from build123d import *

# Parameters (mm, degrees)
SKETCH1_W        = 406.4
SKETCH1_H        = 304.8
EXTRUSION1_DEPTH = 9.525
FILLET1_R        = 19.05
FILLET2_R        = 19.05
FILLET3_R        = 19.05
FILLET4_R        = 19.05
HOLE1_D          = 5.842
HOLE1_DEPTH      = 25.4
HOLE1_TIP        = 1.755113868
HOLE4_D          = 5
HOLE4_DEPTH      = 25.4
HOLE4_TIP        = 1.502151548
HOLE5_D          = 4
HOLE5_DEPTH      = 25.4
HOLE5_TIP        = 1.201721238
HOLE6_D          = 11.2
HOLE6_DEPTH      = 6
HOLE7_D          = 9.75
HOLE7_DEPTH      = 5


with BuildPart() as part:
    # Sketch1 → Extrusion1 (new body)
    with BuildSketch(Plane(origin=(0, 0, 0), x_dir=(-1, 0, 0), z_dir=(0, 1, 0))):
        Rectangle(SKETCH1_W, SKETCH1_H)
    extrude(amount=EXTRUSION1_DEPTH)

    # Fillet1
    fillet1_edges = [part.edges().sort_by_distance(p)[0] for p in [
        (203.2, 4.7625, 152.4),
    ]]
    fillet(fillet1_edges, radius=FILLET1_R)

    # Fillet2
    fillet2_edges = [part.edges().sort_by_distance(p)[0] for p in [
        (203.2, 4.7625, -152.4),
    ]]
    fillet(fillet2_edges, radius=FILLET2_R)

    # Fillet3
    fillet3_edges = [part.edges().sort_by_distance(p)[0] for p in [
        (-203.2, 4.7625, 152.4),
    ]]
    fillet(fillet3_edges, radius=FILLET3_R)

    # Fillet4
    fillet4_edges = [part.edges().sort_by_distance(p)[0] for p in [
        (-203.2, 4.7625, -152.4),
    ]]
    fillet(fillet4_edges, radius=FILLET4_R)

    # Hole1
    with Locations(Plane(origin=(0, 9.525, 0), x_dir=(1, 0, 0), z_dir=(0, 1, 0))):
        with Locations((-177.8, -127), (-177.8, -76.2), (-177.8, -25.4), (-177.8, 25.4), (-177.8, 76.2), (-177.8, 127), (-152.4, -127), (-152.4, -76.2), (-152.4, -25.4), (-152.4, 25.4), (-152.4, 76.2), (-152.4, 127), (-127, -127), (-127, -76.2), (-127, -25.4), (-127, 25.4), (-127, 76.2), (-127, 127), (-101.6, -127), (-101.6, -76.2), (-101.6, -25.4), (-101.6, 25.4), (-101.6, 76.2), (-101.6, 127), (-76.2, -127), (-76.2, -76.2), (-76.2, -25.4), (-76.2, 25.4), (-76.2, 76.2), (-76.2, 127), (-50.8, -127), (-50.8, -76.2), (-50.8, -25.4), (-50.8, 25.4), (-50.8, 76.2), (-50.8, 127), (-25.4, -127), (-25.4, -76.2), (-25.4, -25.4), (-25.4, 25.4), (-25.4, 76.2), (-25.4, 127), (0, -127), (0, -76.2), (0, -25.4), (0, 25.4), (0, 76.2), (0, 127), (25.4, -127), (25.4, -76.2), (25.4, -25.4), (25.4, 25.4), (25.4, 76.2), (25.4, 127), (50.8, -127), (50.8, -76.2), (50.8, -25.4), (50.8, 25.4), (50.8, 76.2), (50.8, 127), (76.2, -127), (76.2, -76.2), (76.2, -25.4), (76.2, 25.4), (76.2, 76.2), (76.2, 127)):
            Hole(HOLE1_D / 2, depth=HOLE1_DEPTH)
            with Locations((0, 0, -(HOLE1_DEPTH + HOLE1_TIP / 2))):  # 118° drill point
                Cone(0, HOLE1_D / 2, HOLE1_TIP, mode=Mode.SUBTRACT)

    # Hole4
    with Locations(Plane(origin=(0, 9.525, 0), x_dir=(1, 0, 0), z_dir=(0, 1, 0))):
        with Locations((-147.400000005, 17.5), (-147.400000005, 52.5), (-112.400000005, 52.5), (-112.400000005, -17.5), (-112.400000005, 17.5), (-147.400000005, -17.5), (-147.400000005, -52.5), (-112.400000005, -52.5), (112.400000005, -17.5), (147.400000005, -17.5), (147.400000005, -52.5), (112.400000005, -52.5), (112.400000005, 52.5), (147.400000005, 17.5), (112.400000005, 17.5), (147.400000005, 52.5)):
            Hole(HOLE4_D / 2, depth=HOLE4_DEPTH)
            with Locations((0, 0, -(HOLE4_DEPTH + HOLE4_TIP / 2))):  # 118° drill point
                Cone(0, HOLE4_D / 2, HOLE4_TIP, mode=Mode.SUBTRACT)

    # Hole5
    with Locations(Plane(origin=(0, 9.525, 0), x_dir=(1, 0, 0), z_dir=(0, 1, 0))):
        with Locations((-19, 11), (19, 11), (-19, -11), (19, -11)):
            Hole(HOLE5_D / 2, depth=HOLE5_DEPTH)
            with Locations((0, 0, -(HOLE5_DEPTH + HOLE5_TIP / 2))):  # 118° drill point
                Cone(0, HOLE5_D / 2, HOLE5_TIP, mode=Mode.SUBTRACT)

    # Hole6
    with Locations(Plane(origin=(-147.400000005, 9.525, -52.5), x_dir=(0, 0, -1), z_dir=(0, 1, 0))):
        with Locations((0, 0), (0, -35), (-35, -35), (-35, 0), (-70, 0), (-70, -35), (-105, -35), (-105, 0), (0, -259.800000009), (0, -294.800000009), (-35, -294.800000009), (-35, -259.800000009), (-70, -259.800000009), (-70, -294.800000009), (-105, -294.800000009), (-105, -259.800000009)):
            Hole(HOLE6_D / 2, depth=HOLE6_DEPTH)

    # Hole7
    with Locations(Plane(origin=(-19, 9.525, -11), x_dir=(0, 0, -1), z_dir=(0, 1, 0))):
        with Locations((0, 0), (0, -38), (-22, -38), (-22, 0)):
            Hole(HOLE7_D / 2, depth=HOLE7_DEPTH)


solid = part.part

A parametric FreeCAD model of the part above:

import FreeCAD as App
import Part
import Sketcher
Q = App.Units.Quantity


def edges_at(feature, points):
    """Names of the edges that pass closest to the given points."""
    edges = feature.Shape.Edges
    near = lambda p: min(range(len(edges)), key=lambda i: edges[i].distToShape(Part.Vertex(*p))[0])
    return sorted({f"Edge{near(p) + 1}" for p in points})

doc = App.newDocument("Part")
body = doc.addObject("PartDesign::Body", "Body")

# Sketch on XZ plane
sketch1 = doc.addObject("Sketcher::SketchObject", "Sketch")
body.addObject(sketch1)
sketch1.AttachmentSupport = (doc.XZ_Plane, [""])
sketch1.MapMode = "FlatFace"
sketch1.addGeometry([
    Part.LineSegment(App.Vector(203, 152, 0), App.Vector(203, -152, 0)),
    Part.LineSegment(App.Vector(203, -152, 0), App.Vector(-203, -152, 0)),
    Part.LineSegment(App.Vector(-203, -152, 0), App.Vector(-203, 152, 0)),
    Part.LineSegment(App.Vector(-203, 152, 0), App.Vector(203, 152, 0)),
], False)
sketch1.addConstraint([
    Sketcher.Constraint("Coincident", 0, 2, 1, 1),
    Sketcher.Constraint("Coincident", 1, 2, 2, 1),
    Sketcher.Constraint("Coincident", 2, 2, 3, 1),
    Sketcher.Constraint("Coincident", 3, 2, 0, 1),
    Sketcher.Constraint("Vertical", 0),
    Sketcher.Constraint("Horizontal", 1),
    Sketcher.Constraint("Vertical", 2),
    Sketcher.Constraint("Horizontal", 3),
    Sketcher.Constraint("Symmetric", 0, 2, 2, 2, -1, 1),
    Sketcher.Constraint("DistanceX", 1, 2, 1, 1, Q("16 in")),
    Sketcher.Constraint("DistanceY", 0, 2, 0, 1, Q("12 in")),
])
pad1 = doc.addObject("PartDesign::Pad", "Pad")
body.addObject(pad1)
pad1.Profile = sketch1
pad1.Length = Q("0.375 in")
pad1.Reversed = True
doc.recompute()

fillet = doc.addObject("PartDesign::Fillet", "Fillet")
body.addObject(fillet)
fillet.Base = (pad1, edges_at(pad1, [(203.2, 4.763, 152.4)]))
fillet.Radius = Q("0.75 in")
doc.recompute()

fillet2 = doc.addObject("PartDesign::Fillet", "Fillet001")
body.addObject(fillet2)
fillet2.Base = (fillet, edges_at(fillet, [(203.2, 4.763, -152.4)]))
fillet2.Radius = Q("0.75 in")
doc.recompute()

fillet3 = doc.addObject("PartDesign::Fillet", "Fillet002")
body.addObject(fillet3)
fillet3.Base = (fillet2, edges_at(fillet2, [(-203.2, 4.763, 152.4)]))
fillet3.Radius = Q("0.75 in")
doc.recompute()

fillet4 = doc.addObject("PartDesign::Fillet", "Fillet003")
body.addObject(fillet4)
fillet4.Base = (fillet3, edges_at(fillet3, [(-203.2, 4.763, -152.4)]))
fillet4.Radius = Q("0.75 in")

# Sketch on XZ plane
sketch2 = doc.addObject("Sketcher::SketchObject", "Sketch001")
body.addObject(sketch2)
sketch2.AttachmentSupport = (doc.XZ_Plane, [""])
sketch2.MapMode = "FlatFace"
sketch2.AttachmentOffset = App.Placement(App.Vector(0, 0, -0.375 * 25.4), App.Rotation())
sketch2.addGeometry([
    Part.Circle(App.Vector(-177.8, 127, 0), App.Vector(0, 0, 1), 2.9),  # 0
    Part.Circle(App.Vector(-177.8, 76.2, 0), App.Vector(0, 0, 1), 2.9),  # 1
    Part.Circle(App.Vector(-177.8, 25.4, 0), App.Vector(0, 0, 1), 2.9),  # 2
    Part.Circle(App.Vector(-177.8, -25.4, 0), App.Vector(0, 0, 1), 2.9),  # 3
    Part.Circle(App.Vector(-177.8, -76.2, 0), App.Vector(0, 0, 1), 2.9),  # 4
    Part.Circle(App.Vector(-177.8, -127, 0), App.Vector(0, 0, 1), 2.9),  # 5
    Part.Circle(App.Vector(-152.4, 127, 0), App.Vector(0, 0, 1), 2.9),  # 6
    Part.Circle(App.Vector(-152.4, 76.2, 0), App.Vector(0, 0, 1), 2.9),  # 7
    Part.Circle(App.Vector(-152.4, 25.4, 0), App.Vector(0, 0, 1), 2.9),  # 8
    Part.Circle(App.Vector(-152.4, -25.4, 0), App.Vector(0, 0, 1), 2.9),  # 9
    Part.Circle(App.Vector(-152.4, -76.2, 0), App.Vector(0, 0, 1), 2.9),  # 10
    Part.Circle(App.Vector(-152.4, -127, 0), App.Vector(0, 0, 1), 2.9),  # 11
    Part.Circle(App.Vector(-127, 127, 0), App.Vector(0, 0, 1), 2.9),  # 12
    Part.Circle(App.Vector(-127, 76.2, 0), App.Vector(0, 0, 1), 2.9),  # 13
    Part.Circle(App.Vector(-127, 25.4, 0), App.Vector(0, 0, 1), 2.9),  # 14
    Part.Circle(App.Vector(-127, -25.4, 0), App.Vector(0, 0, 1), 2.9),  # 15
    Part.Circle(App.Vector(-127, -76.2, 0), App.Vector(0, 0, 1), 2.9),  # 16
    Part.Circle(App.Vector(-127, -127, 0), App.Vector(0, 0, 1), 2.9),  # 17
    Part.Circle(App.Vector(-101.6, 127, 0), App.Vector(0, 0, 1), 2.9),  # 18
    Part.Circle(App.Vector(-101.6, 76.2, 0), App.Vector(0, 0, 1), 2.9),  # 19
    Part.Circle(App.Vector(-101.6, 25.4, 0), App.Vector(0, 0, 1), 2.9),  # 20
    Part.Circle(App.Vector(-101.6, -25.4, 0), App.Vector(0, 0, 1), 2.9),  # 21
    Part.Circle(App.Vector(-101.6, -76.2, 0), App.Vector(0, 0, 1), 2.9),  # 22
    Part.Circle(App.Vector(-101.6, -127, 0), App.Vector(0, 0, 1), 2.9),  # 23
    Part.Circle(App.Vector(-76.2, 127, 0), App.Vector(0, 0, 1), 2.9),  # 24
    Part.Circle(App.Vector(-76.2, 76.2, 0), App.Vector(0, 0, 1), 2.9),  # 25
    Part.Circle(App.Vector(-76.2, 25.4, 0), App.Vector(0, 0, 1), 2.9),  # 26
    Part.Circle(App.Vector(-76.2, -25.4, 0), App.Vector(0, 0, 1), 2.9),  # 27
    Part.Circle(App.Vector(-76.2, -76.2, 0), App.Vector(0, 0, 1), 2.9),  # 28
    Part.Circle(App.Vector(-76.2, -127, 0), App.Vector(0, 0, 1), 2.9),  # 29
    Part.Circle(App.Vector(-50.8, 127, 0), App.Vector(0, 0, 1), 2.9),  # 30
    Part.Circle(App.Vector(-50.8, 76.2, 0), App.Vector(0, 0, 1), 2.9),  # 31
    Part.Circle(App.Vector(-50.8, 25.4, 0), App.Vector(0, 0, 1), 2.9),  # 32
    Part.Circle(App.Vector(-50.8, -25.4, 0), App.Vector(0, 0, 1), 2.9),  # 33
    Part.Circle(App.Vector(-50.8, -76.2, 0), App.Vector(0, 0, 1), 2.9),  # 34
    Part.Circle(App.Vector(-50.8, -127, 0), App.Vector(0, 0, 1), 2.9),  # 35
    Part.Circle(App.Vector(-25.4, 127, 0), App.Vector(0, 0, 1), 2.9),  # 36
    Part.Circle(App.Vector(-25.4, 76.2, 0), App.Vector(0, 0, 1), 2.9),  # 37
    Part.Circle(App.Vector(-25.4, 25.4, 0), App.Vector(0, 0, 1), 2.9),  # 38
    Part.Circle(App.Vector(-25.4, -25.4, 0), App.Vector(0, 0, 1), 2.9),  # 39
    Part.Circle(App.Vector(-25.4, -76.2, 0), App.Vector(0, 0, 1), 2.9),  # 40
    Part.Circle(App.Vector(-25.4, -127, 0), App.Vector(0, 0, 1), 2.9),  # 41
    Part.Circle(App.Vector(0, 127, 0), App.Vector(0, 0, 1), 2.9),  # 42
    Part.Circle(App.Vector(0, 76.2, 0), App.Vector(0, 0, 1), 2.9),  # 43
    Part.Circle(App.Vector(0, 25.4, 0), App.Vector(0, 0, 1), 2.9),  # 44
    Part.Circle(App.Vector(0, -25.4, 0), App.Vector(0, 0, 1), 2.9),  # 45
    Part.Circle(App.Vector(0, -76.2, 0), App.Vector(0, 0, 1), 2.9),  # 46
    Part.Circle(App.Vector(0, -127, 0), App.Vector(0, 0, 1), 2.9),  # 47
    Part.Circle(App.Vector(25.4, 127, 0), App.Vector(0, 0, 1), 2.9),  # 48
    Part.Circle(App.Vector(25.4, 76.2, 0), App.Vector(0, 0, 1), 2.9),  # 49
    Part.Circle(App.Vector(25.4, 25.4, 0), App.Vector(0, 0, 1), 2.9),  # 50
    Part.Circle(App.Vector(25.4, -25.4, 0), App.Vector(0, 0, 1), 2.9),  # 51
    Part.Circle(App.Vector(25.4, -76.2, 0), App.Vector(0, 0, 1), 2.9),  # 52
    Part.Circle(App.Vector(25.4, -127, 0), App.Vector(0, 0, 1), 2.9),  # 53
    Part.Circle(App.Vector(50.8, 127, 0), App.Vector(0, 0, 1), 2.9),  # 54
    Part.Circle(App.Vector(50.8, 76.2, 0), App.Vector(0, 0, 1), 2.9),  # 55
    Part.Circle(App.Vector(50.8, 25.4, 0), App.Vector(0, 0, 1), 2.9),  # 56
    Part.Circle(App.Vector(50.8, -25.4, 0), App.Vector(0, 0, 1), 2.9),  # 57
    Part.Circle(App.Vector(50.8, -76.2, 0), App.Vector(0, 0, 1), 2.9),  # 58
    Part.Circle(App.Vector(50.8, -127, 0), App.Vector(0, 0, 1), 2.9),  # 59
    Part.Circle(App.Vector(76.2, 127, 0), App.Vector(0, 0, 1), 2.9),  # 60
    Part.Circle(App.Vector(76.2, 76.2, 0), App.Vector(0, 0, 1), 2.9),  # 61
    Part.Circle(App.Vector(76.2, 25.4, 0), App.Vector(0, 0, 1), 2.9),  # 62
    Part.Circle(App.Vector(76.2, -25.4, 0), App.Vector(0, 0, 1), 2.9),  # 63
    Part.Circle(App.Vector(76.2, -76.2, 0), App.Vector(0, 0, 1), 2.9),  # 64
    Part.Circle(App.Vector(76.2, -127, 0), App.Vector(0, 0, 1), 2.9),  # 65
], False)
sketch2.addConstraint([
    Sketcher.Constraint("Equal", 0, 1),
    Sketcher.Constraint("Equal", 1, 2),
    Sketcher.Constraint("Equal", 2, 3),
    Sketcher.Constraint("Equal", 3, 4),
    Sketcher.Constraint("Equal", 4, 5),
    Sketcher.Constraint("Equal", 5, 6),
    Sketcher.Constraint("Equal", 6, 7),
    Sketcher.Constraint("Equal", 7, 8),
    Sketcher.Constraint("Equal", 8, 9),
    Sketcher.Constraint("Equal", 9, 10),
    Sketcher.Constraint("Equal", 10, 11),
    Sketcher.Constraint("Equal", 11, 12),
    Sketcher.Constraint("Equal", 12, 13),
    Sketcher.Constraint("Equal", 13, 14),
    Sketcher.Constraint("Equal", 14, 15),
    Sketcher.Constraint("Equal", 15, 16),
    Sketcher.Constraint("Equal", 16, 17),
    Sketcher.Constraint("Equal", 17, 18),
    Sketcher.Constraint("Equal", 18, 19),
    Sketcher.Constraint("Equal", 19, 20),
    Sketcher.Constraint("Equal", 20, 21),
    Sketcher.Constraint("Equal", 21, 22),
    Sketcher.Constraint("Equal", 22, 23),
    Sketcher.Constraint("Equal", 23, 24),
    Sketcher.Constraint("Equal", 24, 25),
    Sketcher.Constraint("Equal", 25, 26),
    Sketcher.Constraint("Equal", 26, 27),
    Sketcher.Constraint("Equal", 27, 28),
    Sketcher.Constraint("Equal", 28, 29),
    Sketcher.Constraint("Equal", 29, 30),
    Sketcher.Constraint("Equal", 30, 31),
    Sketcher.Constraint("Equal", 31, 32),
    Sketcher.Constraint("Equal", 32, 33),
    Sketcher.Constraint("Equal", 33, 34),
    Sketcher.Constraint("Equal", 34, 35),
    Sketcher.Constraint("Equal", 35, 36),
    Sketcher.Constraint("Equal", 36, 37),
    Sketcher.Constraint("Equal", 37, 38),
    Sketcher.Constraint("Equal", 38, 39),
    Sketcher.Constraint("Equal", 39, 40),
    Sketcher.Constraint("Equal", 40, 41),
    Sketcher.Constraint("Equal", 41, 42),
    Sketcher.Constraint("Equal", 42, 43),
    Sketcher.Constraint("Equal", 43, 44),
    Sketcher.Constraint("Equal", 44, 45),
    Sketcher.Constraint("Equal", 45, 46),
    Sketcher.Constraint("Equal", 46, 47),
    Sketcher.Constraint("Equal", 47, 48),
    Sketcher.Constraint("Equal", 48, 49),
    Sketcher.Constraint("Equal", 49, 50),
    Sketcher.Constraint("Equal", 50, 51),
    Sketcher.Constraint("Equal", 51, 52),
    Sketcher.Constraint("Equal", 52, 53),
    Sketcher.Constraint("Equal", 53, 54),
    Sketcher.Constraint("Equal", 54, 55),
    Sketcher.Constraint("Equal", 55, 56),
    Sketcher.Constraint("Equal", 56, 57),
    Sketcher.Constraint("Equal", 57, 58),
    Sketcher.Constraint("Equal", 58, 59),
    Sketcher.Constraint("Equal", 59, 60),
    Sketcher.Constraint("Equal", 60, 61),
    Sketcher.Constraint("Equal", 61, 62),
    Sketcher.Constraint("Equal", 62, 63),
    Sketcher.Constraint("Equal", 63, 64),
    Sketcher.Constraint("Equal", 64, 65),
    Sketcher.Constraint("Symmetric", 44, 3, 45, 3, -1, 1),
    Sketcher.Constraint("Symmetric", 43, 3, 46, 3, -1, 1),
    Sketcher.Constraint("Symmetric", 42, 3, 47, 3, -1, 1),
    Sketcher.Constraint("Symmetric", 41, 3, 48, 3, -1, 1),
    Sketcher.Constraint("Symmetric", 40, 3, 49, 3, -1, 1),
    Sketcher.Constraint("Symmetric", 39, 3, 50, 3, -1, 1),
    Sketcher.Constraint("Symmetric", 38, 3, 51, 3, -1, 1),
    Sketcher.Constraint("Symmetric", 37, 3, 52, 3, -1, 1),
    Sketcher.Constraint("Symmetric", 36, 3, 53, 3, -1, 1),
    Sketcher.Constraint("Symmetric", 35, 3, 54, 3, -1, 1),
    Sketcher.Constraint("Symmetric", 34, 3, 55, 3, -1, 1),
    Sketcher.Constraint("Symmetric", 33, 3, 56, 3, -1, 1),
    Sketcher.Constraint("Symmetric", 32, 3, 57, 3, -1, 1),
    Sketcher.Constraint("Symmetric", 31, 3, 58, 3, -1, 1),
    Sketcher.Constraint("Symmetric", 30, 3, 59, 3, -1, 1),
    Sketcher.Constraint("Symmetric", 29, 3, 60, 3, -1, 1),
    Sketcher.Constraint("Symmetric", 28, 3, 61, 3, -1, 1),
    Sketcher.Constraint("Symmetric", 27, 3, 62, 3, -1, 1),
    Sketcher.Constraint("Symmetric", 26, 3, 63, 3, -1, 1),
    Sketcher.Constraint("Symmetric", 25, 3, 64, 3, -1, 1),
    Sketcher.Constraint("Symmetric", 24, 3, 65, 3, -1, 1),
    Sketcher.Constraint("Symmetric", 36, 3, 48, 3, -2),
    Sketcher.Constraint("Symmetric", 37, 3, 49, 3, -2),
    Sketcher.Constraint("Symmetric", 38, 3, 50, 3, -2),
    Sketcher.Constraint("Symmetric", 30, 3, 54, 3, -2),
    Sketcher.Constraint("Symmetric", 31, 3, 55, 3, -2),
    Sketcher.Constraint("Symmetric", 32, 3, 56, 3, -2),
    Sketcher.Constraint("Symmetric", 24, 3, 60, 3, -2),
    Sketcher.Constraint("Symmetric", 25, 3, 61, 3, -2),
    Sketcher.Constraint("Symmetric", 26, 3, 62, 3, -2),
    Sketcher.Constraint("Symmetric", 2, 3, 3, 3, -1),
    Sketcher.Constraint("Symmetric", 1, 3, 4, 3, -1),
    Sketcher.Constraint("Symmetric", 0, 3, 5, 3, -1),
    Sketcher.Constraint("Symmetric", 8, 3, 9, 3, -1),
    Sketcher.Constraint("Symmetric", 7, 3, 10, 3, -1),
    Sketcher.Constraint("Symmetric", 6, 3, 11, 3, -1),
    Sketcher.Constraint("Symmetric", 14, 3, 15, 3, -1),
    Sketcher.Constraint("Symmetric", 13, 3, 16, 3, -1),
    Sketcher.Constraint("Symmetric", 12, 3, 17, 3, -1),
    Sketcher.Constraint("Symmetric", 20, 3, 21, 3, -1),
    Sketcher.Constraint("Symmetric", 19, 3, 22, 3, -1),
    Sketcher.Constraint("Symmetric", 18, 3, 23, 3, -1),
    Sketcher.Constraint("PointOnObject", 42, 3, -2),
    Sketcher.Constraint("PointOnObject", 43, 3, -2),
    Sketcher.Constraint("PointOnObject", 44, 3, -2),
    Sketcher.Constraint("Horizontal", 0, 3, 6, 3),
    Sketcher.Constraint("Horizontal", 1, 3, 7, 3),
    Sketcher.Constraint("Horizontal", 2, 3, 8, 3),
    Sketcher.Constraint("Horizontal", 6, 3, 12, 3),
    Sketcher.Constraint("Horizontal", 7, 3, 13, 3),
    Sketcher.Constraint("Horizontal", 8, 3, 14, 3),
    Sketcher.Constraint("Horizontal", 12, 3, 18, 3),
    Sketcher.Constraint("Horizontal", 13, 3, 19, 3),
    Sketcher.Constraint("Horizontal", 14, 3, 20, 3),
    Sketcher.Constraint("Horizontal", 18, 3, 24, 3),
    Sketcher.Constraint("Horizontal", 19, 3, 25, 3),
    Sketcher.Constraint("Horizontal", 20, 3, 26, 3),
    Sketcher.Constraint("Horizontal", 24, 3, 30, 3),
    Sketcher.Constraint("Horizontal", 25, 3, 31, 3),
    Sketcher.Constraint("Horizontal", 26, 3, 32, 3),
    Sketcher.Constraint("Horizontal", 30, 3, 36, 3),
    Sketcher.Constraint("Horizontal", 31, 3, 37, 3),
    Sketcher.Constraint("Horizontal", 32, 3, 38, 3),
    Sketcher.Constraint("Horizontal", 36, 3, 42, 3),
    Sketcher.Constraint("Horizontal", 37, 3, 43, 3),
    Sketcher.Constraint("Horizontal", 38, 3, 44, 3),
    Sketcher.Constraint("Vertical", 0, 3, 1, 3),
    Sketcher.Constraint("Vertical", 1, 3, 2, 3),
    Sketcher.Constraint("Vertical", 6, 3, 7, 3),
    Sketcher.Constraint("Vertical", 7, 3, 8, 3),
    Sketcher.Constraint("Vertical", 12, 3, 13, 3),
    Sketcher.Constraint("Vertical", 13, 3, 14, 3),
    Sketcher.Constraint("Vertical", 18, 3, 19, 3),
    Sketcher.Constraint("Vertical", 19, 3, 20, 3),
    Sketcher.Constraint("Vertical", 24, 3, 25, 3),
    Sketcher.Constraint("Vertical", 25, 3, 26, 3),
    Sketcher.Constraint("Vertical", 30, 3, 31, 3),
    Sketcher.Constraint("Vertical", 31, 3, 32, 3),
    Sketcher.Constraint("Vertical", 36, 3, 37, 3),
    Sketcher.Constraint("Vertical", 37, 3, 38, 3),
    Sketcher.Constraint("Diameter", 0, Q("0.23 in")),
    Sketcher.Constraint("DistanceX", 0, 3, -1, 1, Q("7 in")),
    Sketcher.Constraint("DistanceY", -1, 1, 0, 3, Q("5 in")),
    Sketcher.Constraint("DistanceY", -1, 1, 1, 3, Q("3 in")),
    Sketcher.Constraint("DistanceY", -1, 1, 2, 3, Q("1 in")),
    Sketcher.Constraint("DistanceX", 6, 3, -1, 1, Q("6 in")),
    Sketcher.Constraint("DistanceX", 12, 3, -1, 1, Q("5 in")),
    Sketcher.Constraint("DistanceX", 18, 3, -1, 1, Q("4 in")),
    Sketcher.Constraint("DistanceX", 24, 3, -1, 1, Q("3 in")),
    Sketcher.Constraint("DistanceX", 30, 3, -1, 1, Q("2 in")),
    Sketcher.Constraint("DistanceX", 36, 3, -1, 1, Q("1 in")),
])
doc.recompute()
hole = doc.addObject("PartDesign::Hole", "Hole")
body.addObject(hole)
hole.Profile = sketch2
hole.ThreadType = "None"
hole.Diameter = Q("0.23 in")
hole.DepthType = "Dimension"
hole.Depth = Q("1 in")
hole.DrillPoint = "Angled"
hole.DrillPointAngle = 118
hole.Reversed = True

# Sketch on XZ plane
sketch3 = doc.addObject("Sketcher::SketchObject", "Sketch002")
body.addObject(sketch3)
sketch3.AttachmentSupport = (doc.XZ_Plane, [""])
sketch3.MapMode = "FlatFace"
sketch3.AttachmentOffset = App.Placement(App.Vector(0, 0, -0.375 * 25.4), App.Rotation())
sketch3.addGeometry([
    Part.Circle(App.Vector(-147.4, -17.5, 0), App.Vector(0, 0, 1), 2.5),  # 0
    Part.Circle(App.Vector(-147.4, -52.5, 0), App.Vector(0, 0, 1), 2.5),  # 1
    Part.Circle(App.Vector(-112.4, -52.5, 0), App.Vector(0, 0, 1), 2.5),  # 2
    Part.Circle(App.Vector(-112.4, 17.5, 0), App.Vector(0, 0, 1), 2.5),  # 3
    Part.Circle(App.Vector(-112.4, -17.5, 0), App.Vector(0, 0, 1), 2.5),  # 4
    Part.Circle(App.Vector(-147.4, 17.5, 0), App.Vector(0, 0, 1), 2.5),  # 5
    Part.Circle(App.Vector(-147.4, 52.5, 0), App.Vector(0, 0, 1), 2.5),  # 6
    Part.Circle(App.Vector(-112.4, 52.5, 0), App.Vector(0, 0, 1), 2.5),  # 7
    Part.Circle(App.Vector(112.4, 17.5, 0), App.Vector(0, 0, 1), 2.5),  # 8
    Part.Circle(App.Vector(147.4, 17.5, 0), App.Vector(0, 0, 1), 2.5),  # 9
    Part.Circle(App.Vector(147.4, 52.5, 0), App.Vector(0, 0, 1), 2.5),  # 10
    Part.Circle(App.Vector(112.4, 52.5, 0), App.Vector(0, 0, 1), 2.5),  # 11
    Part.Circle(App.Vector(112.4, -52.5, 0), App.Vector(0, 0, 1), 2.5),  # 12
    Part.Circle(App.Vector(147.4, -17.5, 0), App.Vector(0, 0, 1), 2.5),  # 13
    Part.Circle(App.Vector(112.4, -17.5, 0), App.Vector(0, 0, 1), 2.5),  # 14
    Part.Circle(App.Vector(147.4, -52.5, 0), App.Vector(0, 0, 1), 2.5),  # 15
], False)
sketch3.addConstraint([
    Sketcher.Constraint("Equal", 0, 1),
    Sketcher.Constraint("Equal", 1, 2),
    Sketcher.Constraint("Equal", 2, 3),
    Sketcher.Constraint("Equal", 3, 4),
    Sketcher.Constraint("Equal", 4, 5),
    Sketcher.Constraint("Equal", 5, 6),
    Sketcher.Constraint("Equal", 6, 7),
    Sketcher.Constraint("Equal", 7, 8),
    Sketcher.Constraint("Equal", 8, 9),
    Sketcher.Constraint("Equal", 9, 10),
    Sketcher.Constraint("Equal", 10, 11),
    Sketcher.Constraint("Equal", 11, 12),
    Sketcher.Constraint("Equal", 12, 13),
    Sketcher.Constraint("Equal", 13, 14),
    Sketcher.Constraint("Equal", 14, 15),
    Sketcher.Constraint("Symmetric", 4, 3, 8, 3, -1, 1),
    Sketcher.Constraint("Symmetric", 0, 3, 9, 3, -1, 1),
    Sketcher.Constraint("Symmetric", 1, 3, 10, 3, -1, 1),
    Sketcher.Constraint("Symmetric", 2, 3, 11, 3, -1, 1),
    Sketcher.Constraint("Symmetric", 7, 3, 12, 3, -1, 1),
    Sketcher.Constraint("Symmetric", 5, 3, 13, 3, -1, 1),
    Sketcher.Constraint("Symmetric", 3, 3, 14, 3, -1, 1),
    Sketcher.Constraint("Symmetric", 6, 3, 15, 3, -1, 1),
    Sketcher.Constraint("Symmetric", 3, 3, 8, 3, -2),
    Sketcher.Constraint("Symmetric", 5, 3, 9, 3, -2),
    Sketcher.Constraint("Symmetric", 6, 3, 10, 3, -2),
    Sketcher.Constraint("Symmetric", 7, 3, 11, 3, -2),
    Sketcher.Constraint("Horizontal", 1, 3, 2, 3),
    Sketcher.Constraint("Horizontal", 0, 3, 4, 3),
    Sketcher.Constraint("Vertical", 0, 3, 1, 3),
    Sketcher.Constraint("Vertical", 2, 3, 3, 3),
    Sketcher.Constraint("Diameter", 0, 5.0),
    Sketcher.Constraint("DistanceX", 0, 3, -1, 1, 147.4),
    Sketcher.Constraint("DistanceY", 0, 3, -1, 1, 17.5),
    Sketcher.Constraint("DistanceY", 1, 3, -1, 1, 52.5),
    Sketcher.Constraint("DistanceX", 2, 3, -1, 1, 112.4),
])
doc.recompute()
hole2 = doc.addObject("PartDesign::Hole", "Hole001")
body.addObject(hole2)
hole2.Profile = sketch3
hole2.ThreadType = "None"
hole2.Diameter = 5
hole2.DepthType = "Dimension"
hole2.Depth = Q("1 in")
hole2.DrillPoint = "Angled"
hole2.DrillPointAngle = 118
hole2.Reversed = True

# Sketch on XZ plane
sketch4 = doc.addObject("Sketcher::SketchObject", "Sketch003")
body.addObject(sketch4)
sketch4.AttachmentSupport = (doc.XZ_Plane, [""])
sketch4.MapMode = "FlatFace"
sketch4.AttachmentOffset = App.Placement(App.Vector(0, 0, -0.375 * 25.4), App.Rotation())
sketch4.addGeometry([
    Part.Circle(App.Vector(-19, -11, 0), App.Vector(0, 0, 1), 2),
    Part.Circle(App.Vector(19, -11, 0), App.Vector(0, 0, 1), 2),
    Part.Circle(App.Vector(-19, 11, 0), App.Vector(0, 0, 1), 2),
    Part.Circle(App.Vector(19, 11, 0), App.Vector(0, 0, 1), 2),
], False)
sketch4.addConstraint([
    Sketcher.Constraint("Equal", 0, 1),
    Sketcher.Constraint("Equal", 1, 2),
    Sketcher.Constraint("Equal", 2, 3),
    Sketcher.Constraint("Symmetric", 1, 3, 2, 3, -1, 1),
    Sketcher.Constraint("Symmetric", 0, 3, 3, 3, -1, 1),
    Sketcher.Constraint("Symmetric", 0, 3, 1, 3, -2),
    Sketcher.Constraint("Diameter", 0, 4.0),
    Sketcher.Constraint("DistanceX", 0, 3, -1, 1, 19.0),
    Sketcher.Constraint("DistanceY", 0, 3, -1, 1, 11.0),
])
doc.recompute()
hole3 = doc.addObject("PartDesign::Hole", "Hole002")
body.addObject(hole3)
hole3.Profile = sketch4
hole3.ThreadType = "None"
hole3.Diameter = 4
hole3.DepthType = "Dimension"
hole3.Depth = Q("1 in")
hole3.DrillPoint = "Angled"
hole3.DrillPointAngle = 118
hole3.Reversed = True

# Sketch on XZ plane
sketch5 = doc.addObject("Sketcher::SketchObject", "Sketch004")
body.addObject(sketch5)
sketch5.AttachmentSupport = (doc.XZ_Plane, [""])
sketch5.MapMode = "FlatFace"
sketch5.AttachmentOffset = App.Placement(App.Vector(0, 0, -0.375 * 25.4), App.Rotation())
sketch5.addGeometry([
    Part.Circle(App.Vector(-147, -52, 0), App.Vector(0, 0, 1), 6),  # 0
    Part.Circle(App.Vector(-112, -52, 0), App.Vector(0, 0, 1), 6),  # 1
    Part.Circle(App.Vector(-112, -18, 0), App.Vector(0, 0, 1), 6),  # 2
    Part.Circle(App.Vector(-147, -18, 0), App.Vector(0, 0, 1), 6),  # 3
    Part.Circle(App.Vector(-147, 18, 0), App.Vector(0, 0, 1), 6),  # 4
    Part.Circle(App.Vector(-112, 18, 0), App.Vector(0, 0, 1), 6),  # 5
    Part.Circle(App.Vector(-112, 52, 0), App.Vector(0, 0, 1), 6),  # 6
    Part.Circle(App.Vector(-147, 52, 0), App.Vector(0, 0, 1), 6),  # 7
    Part.Circle(App.Vector(112, -52, 0), App.Vector(0, 0, 1), 6),  # 8
    Part.Circle(App.Vector(147, -52, 0), App.Vector(0, 0, 1), 6),  # 9
    Part.Circle(App.Vector(147, -18, 0), App.Vector(0, 0, 1), 6),  # 10
    Part.Circle(App.Vector(112, -18, 0), App.Vector(0, 0, 1), 6),  # 11
    Part.Circle(App.Vector(112, 18, 0), App.Vector(0, 0, 1), 6),  # 12
    Part.Circle(App.Vector(147, 18, 0), App.Vector(0, 0, 1), 6),  # 13
    Part.Circle(App.Vector(147, 52, 0), App.Vector(0, 0, 1), 6),  # 14
    Part.Circle(App.Vector(112, 52, 0), App.Vector(0, 0, 1), 6),  # 15
], False)
sketch5.addConstraint([
    Sketcher.Constraint("Equal", 0, 1),
    Sketcher.Constraint("Equal", 1, 2),
    Sketcher.Constraint("Equal", 2, 3),
    Sketcher.Constraint("Equal", 3, 4),
    Sketcher.Constraint("Equal", 4, 5),
    Sketcher.Constraint("Equal", 5, 6),
    Sketcher.Constraint("Equal", 6, 7),
    Sketcher.Constraint("Equal", 7, 8),
    Sketcher.Constraint("Equal", 8, 9),
    Sketcher.Constraint("Equal", 9, 10),
    Sketcher.Constraint("Equal", 10, 11),
    Sketcher.Constraint("Equal", 11, 12),
    Sketcher.Constraint("Equal", 12, 13),
    Sketcher.Constraint("Equal", 13, 14),
    Sketcher.Constraint("Equal", 14, 15),
    Sketcher.Constraint("Symmetric", 6, 3, 8, 3, -1, 1),
    Sketcher.Constraint("Symmetric", 7, 3, 9, 3, -1, 1),
    Sketcher.Constraint("Symmetric", 4, 3, 10, 3, -1, 1),
    Sketcher.Constraint("Symmetric", 5, 3, 11, 3, -1, 1),
    Sketcher.Constraint("Symmetric", 2, 3, 12, 3, -1, 1),
    Sketcher.Constraint("Symmetric", 3, 3, 13, 3, -1, 1),
    Sketcher.Constraint("Symmetric", 0, 3, 14, 3, -1, 1),
    Sketcher.Constraint("Symmetric", 1, 3, 15, 3, -1, 1),
    Sketcher.Constraint("Symmetric", 1, 3, 8, 3, -2),
    Sketcher.Constraint("Symmetric", 0, 3, 9, 3, -2),
    Sketcher.Constraint("Symmetric", 3, 3, 10, 3, -2),
    Sketcher.Constraint("Symmetric", 2, 3, 11, 3, -2),
    Sketcher.Constraint("Horizontal", 0, 3, 1, 3),
    Sketcher.Constraint("Horizontal", 2, 3, 3, 3),
    Sketcher.Constraint("Vertical", 1, 3, 2, 3),
    Sketcher.Constraint("Vertical", 0, 3, 3, 3),
    Sketcher.Constraint("Diameter", 0, 11.2),
    Sketcher.Constraint("DistanceX", 0, 3, -1, 1, 147.4),
    Sketcher.Constraint("DistanceY", 0, 3, -1, 1, 52.5),
    Sketcher.Constraint("DistanceX", 1, 3, -1, 1, 112.4),
    Sketcher.Constraint("DistanceY", 2, 3, -1, 1, 17.5),
])
doc.recompute()
hole4 = doc.addObject("PartDesign::Hole", "Hole003")
body.addObject(hole4)
hole4.Profile = sketch5
hole4.ThreadType = "None"
hole4.Diameter = 11.2
hole4.DepthType = "Dimension"
hole4.Depth = 6
hole4.DrillPoint = "Flat"
hole4.Reversed = True

# Sketch on XZ plane
sketch6 = doc.addObject("Sketcher::SketchObject", "Sketch005")
body.addObject(sketch6)
sketch6.AttachmentSupport = (doc.XZ_Plane, [""])
sketch6.MapMode = "FlatFace"
sketch6.AttachmentOffset = App.Placement(App.Vector(0, 0, -0.375 * 25.4), App.Rotation())
sketch6.addGeometry([
    Part.Circle(App.Vector(-19, -11, 0), App.Vector(0, 0, 1), 4.9),
    Part.Circle(App.Vector(19, -11, 0), App.Vector(0, 0, 1), 4.9),
    Part.Circle(App.Vector(19, 11, 0), App.Vector(0, 0, 1), 4.9),
    Part.Circle(App.Vector(-19, 11, 0), App.Vector(0, 0, 1), 4.9),
], False)
sketch6.addConstraint([
    Sketcher.Constraint("Equal", 0, 1),
    Sketcher.Constraint("Equal", 1, 2),
    Sketcher.Constraint("Equal", 2, 3),
    Sketcher.Constraint("Symmetric", 0, 3, 2, 3, -1, 1),
    Sketcher.Constraint("Symmetric", 1, 3, 3, 3, -1, 1),
    Sketcher.Constraint("Symmetric", 0, 3, 1, 3, -2),
    Sketcher.Constraint("Diameter", 0, 9.75),
    Sketcher.Constraint("DistanceX", 0, 3, -1, 1, 19.0),
    Sketcher.Constraint("DistanceY", 0, 3, -1, 1, 11.0),
])
doc.recompute()
hole5 = doc.addObject("PartDesign::Hole", "Hole004")
body.addObject(hole5)
hole5.Profile = sketch6
hole5.ThreadType = "None"
hole5.Diameter = 9.75
hole5.DepthType = "Dimension"
hole5.Depth = 5
hole5.DrillPoint = "Flat"
hole5.Reversed = True

doc.recompute()
